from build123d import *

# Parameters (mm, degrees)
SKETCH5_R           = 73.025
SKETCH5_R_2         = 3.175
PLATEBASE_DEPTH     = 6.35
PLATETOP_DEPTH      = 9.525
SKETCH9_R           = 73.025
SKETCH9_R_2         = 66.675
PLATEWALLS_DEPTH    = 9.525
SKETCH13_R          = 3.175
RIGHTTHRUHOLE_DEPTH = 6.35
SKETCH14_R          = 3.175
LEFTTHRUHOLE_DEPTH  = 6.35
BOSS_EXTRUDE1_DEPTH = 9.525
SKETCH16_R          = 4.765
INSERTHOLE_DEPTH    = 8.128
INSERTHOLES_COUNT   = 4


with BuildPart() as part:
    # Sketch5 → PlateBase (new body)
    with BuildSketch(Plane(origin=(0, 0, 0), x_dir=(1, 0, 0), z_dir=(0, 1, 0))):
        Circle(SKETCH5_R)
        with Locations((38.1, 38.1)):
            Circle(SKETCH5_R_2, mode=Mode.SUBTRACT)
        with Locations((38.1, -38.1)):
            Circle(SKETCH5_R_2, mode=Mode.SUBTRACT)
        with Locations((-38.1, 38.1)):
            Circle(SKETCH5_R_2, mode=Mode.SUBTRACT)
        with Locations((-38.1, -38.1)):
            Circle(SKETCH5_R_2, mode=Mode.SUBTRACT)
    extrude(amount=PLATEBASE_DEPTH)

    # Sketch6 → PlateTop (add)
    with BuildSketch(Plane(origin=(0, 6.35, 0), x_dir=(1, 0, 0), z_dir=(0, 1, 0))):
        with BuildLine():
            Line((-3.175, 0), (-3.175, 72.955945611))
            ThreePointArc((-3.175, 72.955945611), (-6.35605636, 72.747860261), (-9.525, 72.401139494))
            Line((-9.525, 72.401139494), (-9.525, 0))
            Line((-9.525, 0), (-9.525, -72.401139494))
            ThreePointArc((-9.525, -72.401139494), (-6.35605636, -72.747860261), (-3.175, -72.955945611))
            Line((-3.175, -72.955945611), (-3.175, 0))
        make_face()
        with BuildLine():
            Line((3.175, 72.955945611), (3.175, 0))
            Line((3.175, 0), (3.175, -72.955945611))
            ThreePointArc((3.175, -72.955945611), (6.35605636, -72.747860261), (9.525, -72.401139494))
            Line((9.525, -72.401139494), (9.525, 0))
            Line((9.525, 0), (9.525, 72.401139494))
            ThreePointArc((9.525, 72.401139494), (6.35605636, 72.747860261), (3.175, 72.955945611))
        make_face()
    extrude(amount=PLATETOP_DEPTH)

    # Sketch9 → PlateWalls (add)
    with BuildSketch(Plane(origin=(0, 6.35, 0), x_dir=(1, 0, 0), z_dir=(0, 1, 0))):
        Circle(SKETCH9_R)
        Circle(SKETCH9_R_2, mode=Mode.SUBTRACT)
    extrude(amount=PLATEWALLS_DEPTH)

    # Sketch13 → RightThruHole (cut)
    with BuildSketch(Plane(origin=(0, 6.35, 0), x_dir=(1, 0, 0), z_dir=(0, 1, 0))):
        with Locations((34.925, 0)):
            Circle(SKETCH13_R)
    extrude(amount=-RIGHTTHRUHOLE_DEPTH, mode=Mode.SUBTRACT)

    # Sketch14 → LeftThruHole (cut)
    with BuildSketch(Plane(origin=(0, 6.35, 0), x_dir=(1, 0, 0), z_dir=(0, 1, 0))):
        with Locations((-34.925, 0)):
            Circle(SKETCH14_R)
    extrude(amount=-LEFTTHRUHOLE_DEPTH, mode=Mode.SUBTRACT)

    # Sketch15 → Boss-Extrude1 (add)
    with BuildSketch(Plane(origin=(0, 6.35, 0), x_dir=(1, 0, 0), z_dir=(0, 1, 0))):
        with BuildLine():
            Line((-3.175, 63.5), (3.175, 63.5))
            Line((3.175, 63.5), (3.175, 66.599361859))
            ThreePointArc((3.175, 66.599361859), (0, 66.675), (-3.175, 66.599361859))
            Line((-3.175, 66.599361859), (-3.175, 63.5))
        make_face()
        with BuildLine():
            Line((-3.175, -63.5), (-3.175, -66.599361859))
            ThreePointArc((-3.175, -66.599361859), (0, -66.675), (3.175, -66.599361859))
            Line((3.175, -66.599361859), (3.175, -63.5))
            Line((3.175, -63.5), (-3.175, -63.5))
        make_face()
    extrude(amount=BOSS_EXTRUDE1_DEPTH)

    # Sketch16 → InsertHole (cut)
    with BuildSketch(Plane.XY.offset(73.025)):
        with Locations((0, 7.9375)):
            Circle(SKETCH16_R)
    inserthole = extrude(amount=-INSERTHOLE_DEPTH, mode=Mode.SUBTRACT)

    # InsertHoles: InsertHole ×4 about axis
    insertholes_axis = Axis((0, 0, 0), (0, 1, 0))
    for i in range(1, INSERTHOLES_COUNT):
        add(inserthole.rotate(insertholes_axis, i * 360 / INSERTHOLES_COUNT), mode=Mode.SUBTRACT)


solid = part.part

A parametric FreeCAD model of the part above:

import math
import FreeCAD as App
import Part
import Sketcher
Q = App.Units.Quantity

doc = App.newDocument("Part")
body = doc.addObject("PartDesign::Body", "Body")

# Sketch on XZ plane
sketch1 = body.newObject("Sketcher::SketchObject", "Sketch")
sketch1.AttachmentSupport = (doc.getObject("XZ_Plane"), [""])
sketch1.MapMode = "FlatFace"
sketch1.addGeometry([
    Part.Circle(App.Vector(0, 0, 0), App.Vector(0, 0, 1), 73),  # 0
    Part.Circle(App.Vector(-38.1, 38.1, 0), App.Vector(0, 0, 1), 3.2),  # 1
    Part.Circle(App.Vector(38.1, 38.1, 0), App.Vector(0, 0, 1), 3.2),  # 2
    Part.Circle(App.Vector(-38.1, -38.1, 0), App.Vector(0, 0, 1), 3.2),  # 3
    Part.Circle(App.Vector(38.1, -38.1, 0), App.Vector(0, 0, 1), 3.2),  # 4
], False)
sketch1.addConstraint([
    Sketcher.Constraint("Coincident", 0, 3, -1, 1),
    Sketcher.Constraint("Equal", 1, 2),
    Sketcher.Constraint("Equal", 2, 3),
    Sketcher.Constraint("Equal", 3, 4),
    Sketcher.Constraint("Symmetric", 2, 3, 3, 3, -1, 1),
    Sketcher.Constraint("Symmetric", 1, 3, 4, 3, -1, 1),
    Sketcher.Constraint("Symmetric", 1, 3, 2, 3, -2),
    Sketcher.Constraint("Diameter", 0, Q("5.75 in")),
    Sketcher.Constraint("Diameter", 1, Q("0.25 in")),
    Sketcher.Constraint("DistanceX", 1, 3, 2, 3, Q("3 in")),
    Sketcher.Constraint("DistanceY", 3, 3, 1, 3, Q("3 in")),
])
pad1 = body.newObject("PartDesign::Pad", "Pad")
pad1.Profile = sketch1
pad1.Length = Q("0.25 in")
pad1.Reversed = True

# Sketch on XZ plane
sketch2 = body.newObject("Sketcher::SketchObject", "Sketch001")
sketch2.AttachmentSupport = (doc.getObject("XZ_Plane"), [""])
sketch2.MapMode = "FlatFace"
sketch2.AttachmentOffset = App.Placement(App.Vector(0, 0, -0.25 * 25.4), App.Rotation())
sketch2.addGeometry([
    Part.ArcOfCircle(Part.Circle(App.Vector(0, 0, 0), App.Vector(0, 0, 1), 73), math.radians(-97.49), math.radians(-92.49)),  # 0
    Part.LineSegment(App.Vector(-10, -72, 0), App.Vector(-10, 72, 0)),  # 1
    Part.ArcOfCircle(Part.Circle(App.Vector(0, 0, 0), App.Vector(0, 0, 1), 73), math.radians(92.49), math.radians(97.49)),  # 2
    Part.LineSegment(App.Vector(-3, 73, 0), App.Vector(-3, -73, 0)),  # 3
    Part.LineSegment(App.Vector(3, -73, 0), App.Vector(3, 73, 0)),  # 4
    Part.ArcOfCircle(Part.Circle(App.Vector(0, 0, 0), App.Vector(0, 0, 1), 73), math.radians(82.51), math.radians(87.51)),  # 5
    Part.LineSegment(App.Vector(10, 72, 0), App.Vector(10, -72, 0)),  # 6
    Part.ArcOfCircle(Part.Circle(App.Vector(0, 0, 0), App.Vector(0, 0, 1), 73), math.radians(-87.51), math.radians(-82.51)),  # 7
], False)
sketch2.addConstraint([
    Sketcher.Constraint("Coincident", 0, 1, 1, 1),
    Sketcher.Constraint("Coincident", 1, 2, 2, 2),
    Sketcher.Constraint("Coincident", 2, 1, 3, 1),
    Sketcher.Constraint("Coincident", 3, 2, 0, 2),
    Sketcher.Constraint("Coincident", 4, 2, 5, 2),
    Sketcher.Constraint("Coincident", 5, 1, 6, 1),
    Sketcher.Constraint("Coincident", 6, 2, 7, 2),
    Sketcher.Constraint("Coincident", 7, 1, 4, 1),
    Sketcher.Constraint("Vertical", 1),
    Sketcher.Constraint("Vertical", 3),
    Sketcher.Constraint("Vertical", 4),
    Sketcher.Constraint("Vertical", 6),
    Sketcher.Constraint("Coincident", 0, 3, -1, 1),
    Sketcher.Constraint("Coincident", 2, 3, -1, 1),
    Sketcher.Constraint("Coincident", 5, 3, -1, 1),
    Sketcher.Constraint("Coincident", 7, 3, -1, 1),
    Sketcher.Constraint("Equal", 0, 2),
    Sketcher.Constraint("Equal", 2, 5),
    Sketcher.Constraint("Equal", 5, 7),
    Sketcher.Constraint("Horizontal", 2, 1, 4, 2),
    Sketcher.Constraint("Horizontal", 1, 2, 5, 1),
    Sketcher.Constraint("Radius", 0, Q("2.875 in")),
    Sketcher.Constraint("DistanceX", 1, 2, 4, 2, Q("0.5 in")),
    Sketcher.Constraint("DistanceX", 1, 2, 2, 1, Q("0.25 in")),
])
pad2 = body.newObject("PartDesign::Pad", "Pad001")
pad2.Profile = sketch2
pad2.Length = Q("0.375 in")
pad2.Reversed = True

# Sketch on XZ plane
sketch3 = body.newObject("Sketcher::SketchObject", "Sketch002")
sketch3.AttachmentSupport = (doc.getObject("XZ_Plane"), [""])
sketch3.MapMode = "FlatFace"
sketch3.AttachmentOffset = App.Placement(App.Vector(0, 0, -0.25 * 25.4), App.Rotation())
sketch3.addGeometry([
    Part.Circle(App.Vector(0, 0, 0), App.Vector(0, 0, 1), 73),
    Part.Circle(App.Vector(0, 0, 0), App.Vector(0, 0, 1), 67),
], False)
sketch3.addConstraint([
    Sketcher.Constraint("Coincident", 0, 3, -1, 1),
    Sketcher.Constraint("Coincident", 1, 3, -1, 1),
    Sketcher.Constraint("Diameter", 0, Q("5.75 in")),
    Sketcher.Constraint("Diameter", 1, Q("5.25 in")),
])
pad3 = body.newObject("PartDesign::Pad", "Pad002")
pad3.Profile = sketch3
pad3.Length = Q("0.375 in")
pad3.Reversed = True

# Sketch on XZ plane
sketch4 = body.newObject("Sketcher::SketchObject", "Sketch003")
sketch4.AttachmentSupport = (doc.getObject("XZ_Plane"), [""])
sketch4.MapMode = "FlatFace"
sketch4.AttachmentOffset = App.Placement(App.Vector(0, 0, -0.25 * 25.4), App.Rotation())
sketch4.addGeometry(Part.Circle(App.Vector(34.9, 0, 0), App.Vector(0, 0, 1), 3.2), False)
sketch4.addConstraint([
    Sketcher.Constraint("PointOnObject", 0, 3, -1),
    Sketcher.Constraint("Diameter", 0, Q("0.25 in")),
    Sketcher.Constraint("DistanceX", -1, 1, 0, 3, Q("1.375 in")),
])
pocket1 = body.newObject("PartDesign::Pocket", "Pocket")
pocket1.Profile = sketch4
pocket1.Length = Q("0.25 in")
pocket1.Reversed = True

# Sketch on XZ plane
sketch5 = body.newObject("Sketcher::SketchObject", "Sketch004")
sketch5.AttachmentSupport = (doc.getObject("XZ_Plane"), [""])
sketch5.MapMode = "FlatFace"
sketch5.AttachmentOffset = App.Placement(App.Vector(0, 0, -0.25 * 25.4), App.Rotation())
sketch5.addGeometry(Part.Circle(App.Vector(-34.9, 0, 0), App.Vector(0, 0, 1), 3.2), False)
sketch5.addConstraint([
    Sketcher.Constraint("PointOnObject", 0, 3, -1),
    Sketcher.Constraint("Diameter", 0, Q("0.25 in")),
    Sketcher.Constraint("DistanceX", 0, 3, -1, 1, Q("1.375 in")),
])
pocket2 = body.newObject("PartDesign::Pocket", "Pocket001")
pocket2.Profile = sketch5
pocket2.Length = Q("0.25 in")
pocket2.Reversed = True

# Sketch on XZ plane
sketch6 = body.newObject("Sketcher::SketchObject", "Sketch005")
sketch6.AttachmentSupport = (doc.getObject("XZ_Plane"), [""])
sketch6.MapMode = "FlatFace"
sketch6.AttachmentOffset = App.Placement(App.Vector(0, 0, -0.25 * 25.4), App.Rotation())
sketch6.addGeometry([
    Part.LineSegment(App.Vector(-3.2, -63.5, 0), App.Vector(3.2, -63.5, 0)),  # 0
    Part.LineSegment(App.Vector(3.2, -63.5, 0), App.Vector(3.2, -66.6, 0)),  # 1
    Part.ArcOfCircle(Part.Circle(App.Vector(0, 0, 0), App.Vector(0, 0, 1), 66.7), math.radians(-92.73), math.radians(-87.27)),  # 2
    Part.LineSegment(App.Vector(-3.2, -66.6, 0), App.Vector(-3.2, -63.5, 0)),  # 3
    Part.LineSegment(App.Vector(-3.2, 63.5, 0), App.Vector(-3.2, 66.6, 0)),  # 4
    Part.ArcOfCircle(Part.Circle(App.Vector(0, 0, 0), App.Vector(0, 0, 1), 66.7), math.radians(87.27), math.radians(92.73)),  # 5
    Part.LineSegment(App.Vector(3.2, 66.6, 0), App.Vector(3.2, 63.5, 0)),  # 6
    Part.LineSegment(App.Vector(3.2, 63.5, 0), App.Vector(-3.2, 63.5, 0)),  # 7
], False)
sketch6.addConstraint([
    Sketcher.Constraint("Coincident", 0, 2, 1, 1),
    Sketcher.Constraint("Coincident", 1, 2, 2, 2),
    Sketcher.Constraint("Coincident", 2, 1, 3, 1),
    Sketcher.Constraint("Coincident", 3, 2, 0, 1),
    Sketcher.Constraint("Coincident", 4, 2, 5, 2),
    Sketcher.Constraint("Coincident", 5, 1, 6, 1),
    Sketcher.Constraint("Coincident", 6, 2, 7, 1),
    Sketcher.Constraint("Coincident", 7, 2, 4, 1),
    Sketcher.Constraint("Horizontal", 0),
    Sketcher.Constraint("Vertical", 1),
    Sketcher.Constraint("Vertical", 3),
    Sketcher.Constraint("Vertical", 4),
    Sketcher.Constraint("Vertical", 6),
    Sketcher.Constraint("Horizontal", 7),
    Sketcher.Constraint("Coincident", 2, 3, -1, 1),
    Sketcher.Constraint("Coincident", 5, 3, -1, 1),
    Sketcher.Constraint("Equal", 2, 5),
    Sketcher.Constraint("Symmetric", 3, 2, 6, 2, -1, 1),
    Sketcher.Constraint("Horizontal", 1, 2, 2, 1),
    Sketcher.Constraint("Horizontal", 4, 2, 5, 1),
    Sketcher.Constraint("Radius", 2, Q("2.625 in")),
    Sketcher.Constraint("DistanceY", 0, 2, 6, 2, Q("5 in")),
    Sketcher.Constraint("DistanceX", 0, 1, 0, 2, Q("0.25 in")),
])
pad4 = body.newObject("PartDesign::Pad", "Pad003")
pad4.Profile = sketch6
pad4.Length = Q("0.375 in")
pad4.Reversed = True

# Sketch on XY plane
sketch7 = body.newObject("Sketcher::SketchObject", "Sketch006")
sketch7.AttachmentSupport = (doc.getObject("XY_Plane"), [""])
sketch7.MapMode = "FlatFace"
sketch7.AttachmentOffset = App.Placement(App.Vector(0, 0, 2.875 * 25.4), App.Rotation())
sketch7.addGeometry(Part.Circle(App.Vector(0, 7.9, 0), App.Vector(0, 0, 1), 4.8), False)
sketch7.addConstraint([
    Sketcher.Constraint("PointOnObject", 0, 3, -2),
    Sketcher.Constraint("Diameter", 0, 9.53),
    Sketcher.Constraint("DistanceY", -1, 1, 0, 3, Q("0.3125 in")),
])
pocket3 = body.newObject("PartDesign::Pocket", "Pocket002")
pocket3.Profile = sketch7
pocket3.Length = Q("0.32 in")
doc.recompute()

polarpattern = body.newObject("PartDesign::PolarPattern", "PolarPattern")
polarpattern.Originals = [pocket3]
polarpattern.Axis = (doc.getObject("Y_Axis"), [""])
polarpattern.Angle = 360
polarpattern.Occurrences = 4
body.Tip = polarpattern

doc.recompute()
